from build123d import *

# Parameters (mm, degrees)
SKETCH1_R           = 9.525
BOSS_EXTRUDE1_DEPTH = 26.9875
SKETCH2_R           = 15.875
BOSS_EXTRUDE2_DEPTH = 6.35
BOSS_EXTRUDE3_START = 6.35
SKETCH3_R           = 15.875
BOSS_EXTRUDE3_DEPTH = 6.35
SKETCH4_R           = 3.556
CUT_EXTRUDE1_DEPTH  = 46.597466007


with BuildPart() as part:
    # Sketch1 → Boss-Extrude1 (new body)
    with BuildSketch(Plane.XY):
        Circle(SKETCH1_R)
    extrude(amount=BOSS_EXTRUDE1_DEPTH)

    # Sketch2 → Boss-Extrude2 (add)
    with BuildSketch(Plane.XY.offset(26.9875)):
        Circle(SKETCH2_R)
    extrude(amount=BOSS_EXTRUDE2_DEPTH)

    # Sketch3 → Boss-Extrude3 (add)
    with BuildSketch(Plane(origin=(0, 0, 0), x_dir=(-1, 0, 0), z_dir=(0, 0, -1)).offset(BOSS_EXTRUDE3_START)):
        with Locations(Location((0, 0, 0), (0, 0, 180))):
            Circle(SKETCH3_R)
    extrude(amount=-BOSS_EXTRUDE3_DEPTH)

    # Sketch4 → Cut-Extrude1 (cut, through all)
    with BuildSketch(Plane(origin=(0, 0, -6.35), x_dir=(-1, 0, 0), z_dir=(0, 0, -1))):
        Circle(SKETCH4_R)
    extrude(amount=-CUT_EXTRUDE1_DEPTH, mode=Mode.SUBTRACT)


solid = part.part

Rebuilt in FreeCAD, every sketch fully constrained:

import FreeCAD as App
import Part
import Sketcher

V = App.Vector
Q = App.Units.Quantity

doc = App.newDocument("Part")
body = doc.addObject("PartDesign::Body", "Body")

# Sketch on XY plane
sketch1 = body.newObject("Sketcher::SketchObject", "Sketch")
sketch1.AttachmentSupport = (doc.getObject("XY_Plane"), [""])
sketch1.MapMode = "FlatFace"
sketch1.addGeometry(Part.Circle(V(0, 0, 0), V(0, 0, 1), 10), False)
sketch1.addConstraint(Sketcher.Constraint("Coincident", 0, 3, -1, 1))
sketch1.addConstraint(Sketcher.Constraint("Diameter", 0, Q("0.75 in")))
pad1 = body.newObject("PartDesign::Pad", "Pad")
pad1.Profile = sketch1
pad1.Length = Q("1.0625 in")

# Sketch on XY plane
sketch2 = body.newObject("Sketcher::SketchObject", "Sketch001")
sketch2.AttachmentSupport = (doc.getObject("XY_Plane"), [""])
sketch2.MapMode = "FlatFace"
sketch2.AttachmentOffset = App.Placement(V(0, 0, 1.0625 * 25.4), App.Rotation())
sketch2.addGeometry(Part.Circle(V(0, 0, 0), V(0, 0, 1), 16), False)
sketch2.addConstraint(Sketcher.Constraint("Coincident", 0, 3, -1, 1))
sketch2.addConstraint(Sketcher.Constraint("Diameter", 0, Q("1.25 in")))
pad2 = body.newObject("PartDesign::Pad", "Pad001")
pad2.Profile = sketch2
pad2.Length = Q("0.25 in")

# Sketch on XY plane
sketch3 = body.newObject("Sketcher::SketchObject", "Sketch002")
sketch3.AttachmentSupport = (doc.getObject("XY_Plane"), [""])
sketch3.MapMode = "FlatFace"
sketch3.AttachmentOffset = App.Placement(V(0, 0, -0.25 * 25.4), App.Rotation())
sketch3.addGeometry(Part.Circle(V(0, 0, 0), V(0, 0, 1), 16), False)
sketch3.addConstraint(Sketcher.Constraint("Coincident", 0, 3, -1, 1))
sketch3.addConstraint(Sketcher.Constraint("Diameter", 0, Q("1.25 in")))
pad3 = body.newObject("PartDesign::Pad", "Pad002")
pad3.Profile = sketch3
pad3.Length = Q("0.25 in")

# Sketch on XY plane
sketch4 = body.newObject("Sketcher::SketchObject", "Sketch003")
sketch4.AttachmentSupport = (doc.getObject("XY_Plane"), [""])
sketch4.MapMode = "FlatFace"
sketch4.AttachmentOffset = App.Placement(V(0, 0, -0.25 * 25.4), App.Rotation())
sketch4.addGeometry(Part.Circle(V(0, 0, 0), V(0, 0, 1), 3.6), False)
sketch4.addConstraint(Sketcher.Constraint("Coincident", 0, 3, -1, 1))
sketch4.addConstraint(Sketcher.Constraint("Diameter", 0, Q("0.28 in")))
pocket1 = body.newObject("PartDesign::Pocket", "Pocket")
pocket1.Profile = sketch4
pocket1.Type = "ThroughAll"
pocket1.Reversed = True

doc.recompute()
